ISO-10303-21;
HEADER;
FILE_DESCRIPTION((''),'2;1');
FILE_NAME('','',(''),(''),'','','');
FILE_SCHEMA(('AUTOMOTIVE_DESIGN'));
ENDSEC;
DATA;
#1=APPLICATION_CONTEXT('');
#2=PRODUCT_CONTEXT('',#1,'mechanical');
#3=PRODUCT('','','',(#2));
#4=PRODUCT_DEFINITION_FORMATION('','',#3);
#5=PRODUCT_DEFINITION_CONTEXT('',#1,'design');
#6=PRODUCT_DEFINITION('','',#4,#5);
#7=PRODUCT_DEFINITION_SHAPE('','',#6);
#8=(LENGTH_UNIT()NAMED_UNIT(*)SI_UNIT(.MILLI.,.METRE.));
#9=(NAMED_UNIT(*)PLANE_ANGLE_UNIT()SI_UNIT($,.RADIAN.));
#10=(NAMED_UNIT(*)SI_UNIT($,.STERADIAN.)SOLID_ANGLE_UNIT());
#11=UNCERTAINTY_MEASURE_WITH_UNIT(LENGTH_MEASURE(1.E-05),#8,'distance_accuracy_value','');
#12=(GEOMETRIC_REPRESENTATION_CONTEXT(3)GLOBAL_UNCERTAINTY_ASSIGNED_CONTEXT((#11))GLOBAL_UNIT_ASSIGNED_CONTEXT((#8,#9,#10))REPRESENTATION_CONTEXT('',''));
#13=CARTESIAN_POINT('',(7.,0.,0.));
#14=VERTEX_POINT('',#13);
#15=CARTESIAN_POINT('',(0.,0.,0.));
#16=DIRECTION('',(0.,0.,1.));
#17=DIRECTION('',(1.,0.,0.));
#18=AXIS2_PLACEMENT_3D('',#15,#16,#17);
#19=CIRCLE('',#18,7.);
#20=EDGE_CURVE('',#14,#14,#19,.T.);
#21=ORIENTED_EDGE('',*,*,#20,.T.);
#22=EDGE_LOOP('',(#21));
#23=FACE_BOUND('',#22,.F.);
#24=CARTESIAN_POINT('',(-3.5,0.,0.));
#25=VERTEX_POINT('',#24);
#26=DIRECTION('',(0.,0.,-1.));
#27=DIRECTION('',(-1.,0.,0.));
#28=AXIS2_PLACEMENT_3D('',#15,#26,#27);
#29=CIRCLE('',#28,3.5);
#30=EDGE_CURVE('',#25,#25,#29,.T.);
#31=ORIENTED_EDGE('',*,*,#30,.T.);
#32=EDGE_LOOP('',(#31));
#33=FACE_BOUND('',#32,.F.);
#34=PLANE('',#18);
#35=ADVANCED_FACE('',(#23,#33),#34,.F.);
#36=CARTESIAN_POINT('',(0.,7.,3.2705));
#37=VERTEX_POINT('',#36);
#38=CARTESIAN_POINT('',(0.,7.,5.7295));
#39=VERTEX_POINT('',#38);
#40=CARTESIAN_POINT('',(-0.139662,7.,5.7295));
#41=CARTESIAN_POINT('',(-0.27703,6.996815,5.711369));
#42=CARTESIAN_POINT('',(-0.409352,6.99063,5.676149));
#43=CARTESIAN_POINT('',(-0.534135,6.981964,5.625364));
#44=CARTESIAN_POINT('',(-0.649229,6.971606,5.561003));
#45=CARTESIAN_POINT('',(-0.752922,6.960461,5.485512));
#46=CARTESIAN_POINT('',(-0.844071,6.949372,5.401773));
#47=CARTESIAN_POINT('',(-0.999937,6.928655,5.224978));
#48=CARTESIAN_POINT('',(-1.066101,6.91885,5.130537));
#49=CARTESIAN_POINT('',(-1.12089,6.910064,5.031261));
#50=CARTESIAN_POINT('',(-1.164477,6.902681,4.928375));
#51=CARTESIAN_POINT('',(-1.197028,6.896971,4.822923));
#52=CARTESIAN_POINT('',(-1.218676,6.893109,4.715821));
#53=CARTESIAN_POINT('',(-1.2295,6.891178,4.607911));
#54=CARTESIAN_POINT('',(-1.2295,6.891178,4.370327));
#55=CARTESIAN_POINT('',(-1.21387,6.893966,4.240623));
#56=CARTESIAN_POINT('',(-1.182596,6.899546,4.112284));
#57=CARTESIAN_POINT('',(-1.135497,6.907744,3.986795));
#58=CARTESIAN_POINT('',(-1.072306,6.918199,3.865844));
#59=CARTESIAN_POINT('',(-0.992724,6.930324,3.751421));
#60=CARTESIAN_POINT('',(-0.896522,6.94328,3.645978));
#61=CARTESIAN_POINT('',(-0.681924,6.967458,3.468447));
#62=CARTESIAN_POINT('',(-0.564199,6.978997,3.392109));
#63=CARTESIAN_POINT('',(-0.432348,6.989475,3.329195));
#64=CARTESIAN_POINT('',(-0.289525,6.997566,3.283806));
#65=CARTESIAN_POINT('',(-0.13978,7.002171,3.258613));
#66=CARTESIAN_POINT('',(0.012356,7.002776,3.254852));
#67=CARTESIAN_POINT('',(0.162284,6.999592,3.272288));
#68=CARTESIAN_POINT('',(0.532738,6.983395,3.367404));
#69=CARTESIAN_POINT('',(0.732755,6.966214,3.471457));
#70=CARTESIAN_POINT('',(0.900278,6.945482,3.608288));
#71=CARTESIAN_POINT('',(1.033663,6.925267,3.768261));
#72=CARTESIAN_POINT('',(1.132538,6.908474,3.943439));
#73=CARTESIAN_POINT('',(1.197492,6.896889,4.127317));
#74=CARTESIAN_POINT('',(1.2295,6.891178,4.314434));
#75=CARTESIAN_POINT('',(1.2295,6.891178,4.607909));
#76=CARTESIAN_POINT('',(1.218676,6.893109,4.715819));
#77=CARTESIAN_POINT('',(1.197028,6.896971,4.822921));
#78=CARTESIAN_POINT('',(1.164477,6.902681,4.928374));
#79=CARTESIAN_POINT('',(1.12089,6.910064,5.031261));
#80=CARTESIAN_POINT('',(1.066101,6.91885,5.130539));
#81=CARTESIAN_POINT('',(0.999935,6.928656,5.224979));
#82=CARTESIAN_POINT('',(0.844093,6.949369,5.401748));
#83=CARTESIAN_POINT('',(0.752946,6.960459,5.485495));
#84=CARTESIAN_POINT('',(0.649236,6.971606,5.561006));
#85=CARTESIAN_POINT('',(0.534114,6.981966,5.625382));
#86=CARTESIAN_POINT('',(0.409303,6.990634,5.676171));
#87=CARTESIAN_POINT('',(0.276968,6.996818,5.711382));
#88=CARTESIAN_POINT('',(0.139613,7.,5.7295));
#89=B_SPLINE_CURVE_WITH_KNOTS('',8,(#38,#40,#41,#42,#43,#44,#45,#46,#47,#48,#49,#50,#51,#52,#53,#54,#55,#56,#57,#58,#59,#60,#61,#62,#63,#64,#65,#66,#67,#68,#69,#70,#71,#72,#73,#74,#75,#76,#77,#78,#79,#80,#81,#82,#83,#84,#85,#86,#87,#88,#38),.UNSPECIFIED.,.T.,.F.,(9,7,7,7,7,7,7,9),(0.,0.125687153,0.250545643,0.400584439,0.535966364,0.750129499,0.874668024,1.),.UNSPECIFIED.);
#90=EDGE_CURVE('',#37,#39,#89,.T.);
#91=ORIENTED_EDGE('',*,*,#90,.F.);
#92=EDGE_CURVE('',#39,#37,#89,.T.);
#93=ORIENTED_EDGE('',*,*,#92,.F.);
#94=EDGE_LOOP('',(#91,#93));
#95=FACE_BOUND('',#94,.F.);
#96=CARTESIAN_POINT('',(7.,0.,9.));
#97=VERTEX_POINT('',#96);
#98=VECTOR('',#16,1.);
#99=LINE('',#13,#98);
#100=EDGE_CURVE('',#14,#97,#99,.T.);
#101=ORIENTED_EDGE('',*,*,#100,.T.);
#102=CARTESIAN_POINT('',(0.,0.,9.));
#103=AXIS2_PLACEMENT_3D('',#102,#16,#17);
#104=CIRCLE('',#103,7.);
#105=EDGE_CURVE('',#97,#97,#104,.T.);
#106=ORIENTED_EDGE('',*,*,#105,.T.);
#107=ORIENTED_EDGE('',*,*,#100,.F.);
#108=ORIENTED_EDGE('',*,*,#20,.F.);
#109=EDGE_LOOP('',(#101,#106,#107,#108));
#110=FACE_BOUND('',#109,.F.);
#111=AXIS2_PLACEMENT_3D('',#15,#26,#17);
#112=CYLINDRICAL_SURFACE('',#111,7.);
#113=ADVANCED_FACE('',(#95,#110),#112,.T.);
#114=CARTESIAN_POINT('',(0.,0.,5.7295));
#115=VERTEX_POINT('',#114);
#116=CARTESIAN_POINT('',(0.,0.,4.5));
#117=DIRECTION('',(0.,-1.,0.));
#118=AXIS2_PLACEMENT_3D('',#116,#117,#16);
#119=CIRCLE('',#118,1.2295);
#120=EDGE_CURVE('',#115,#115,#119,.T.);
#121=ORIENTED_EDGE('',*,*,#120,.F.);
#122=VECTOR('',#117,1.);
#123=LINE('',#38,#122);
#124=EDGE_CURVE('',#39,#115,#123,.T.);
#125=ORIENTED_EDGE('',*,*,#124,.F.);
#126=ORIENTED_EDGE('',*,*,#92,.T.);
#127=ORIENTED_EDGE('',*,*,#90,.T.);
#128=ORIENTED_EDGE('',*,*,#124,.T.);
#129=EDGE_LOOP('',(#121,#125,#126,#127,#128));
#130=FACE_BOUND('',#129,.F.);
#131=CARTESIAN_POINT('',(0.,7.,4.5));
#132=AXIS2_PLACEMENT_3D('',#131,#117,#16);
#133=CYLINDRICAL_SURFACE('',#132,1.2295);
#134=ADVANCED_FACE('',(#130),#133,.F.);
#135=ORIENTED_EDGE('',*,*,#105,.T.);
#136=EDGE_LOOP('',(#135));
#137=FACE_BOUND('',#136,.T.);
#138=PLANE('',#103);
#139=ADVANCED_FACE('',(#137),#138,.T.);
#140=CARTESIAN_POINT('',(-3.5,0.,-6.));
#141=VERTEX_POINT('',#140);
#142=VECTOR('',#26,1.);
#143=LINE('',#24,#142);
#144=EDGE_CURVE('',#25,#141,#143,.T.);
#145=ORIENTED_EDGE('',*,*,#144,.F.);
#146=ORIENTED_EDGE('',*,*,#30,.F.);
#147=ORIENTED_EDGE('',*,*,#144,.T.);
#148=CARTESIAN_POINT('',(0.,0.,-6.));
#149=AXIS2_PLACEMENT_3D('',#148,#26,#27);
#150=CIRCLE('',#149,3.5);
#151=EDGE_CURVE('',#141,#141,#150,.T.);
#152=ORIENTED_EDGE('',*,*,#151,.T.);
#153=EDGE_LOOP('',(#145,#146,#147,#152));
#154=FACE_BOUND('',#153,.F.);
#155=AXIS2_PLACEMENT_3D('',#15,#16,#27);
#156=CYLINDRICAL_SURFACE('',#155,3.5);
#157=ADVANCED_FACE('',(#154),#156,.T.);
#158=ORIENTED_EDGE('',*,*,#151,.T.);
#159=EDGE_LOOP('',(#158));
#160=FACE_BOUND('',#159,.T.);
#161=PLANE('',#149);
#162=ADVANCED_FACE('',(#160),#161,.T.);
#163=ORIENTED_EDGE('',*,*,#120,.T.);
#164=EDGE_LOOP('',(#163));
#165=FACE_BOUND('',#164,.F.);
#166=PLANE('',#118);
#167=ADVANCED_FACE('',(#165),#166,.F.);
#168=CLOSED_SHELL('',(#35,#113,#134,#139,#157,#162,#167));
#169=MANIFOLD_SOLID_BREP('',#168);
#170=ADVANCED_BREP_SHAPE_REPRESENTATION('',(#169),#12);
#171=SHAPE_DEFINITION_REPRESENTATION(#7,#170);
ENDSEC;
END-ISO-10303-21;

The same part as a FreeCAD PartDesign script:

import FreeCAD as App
import Part
import Sketcher
from FreeCAD import Vector
Q = App.Units.Quantity

doc = App.newDocument("Part")
body = doc.addObject("PartDesign::Body", "Body")

# Sketch on XY plane
sketch1 = body.newObject("Sketcher::SketchObject", "Sketch")
sketch1.AttachmentSupport = (doc.getObject("XY_Plane"), [""])
sketch1.MapMode = "FlatFace"
sketch1.addGeometry(Part.Circle(Vector(0, 0, 0), Vector(0, 0, 1), 7), False)
sketch1.addConstraint([
    Sketcher.Constraint("Coincident", 0, 3, -1, 1),
    Sketcher.Constraint("Diameter", 0, Q("14 mm")),
])
pad1 = body.newObject("PartDesign::Pad", "Pad")
pad1.Profile = sketch1
pad1.Length = 9

# Sketch on XZ plane
sketch2 = body.newObject("Sketcher::SketchObject", "Sketch001")
sketch2.AttachmentSupport = (doc.getObject("XZ_Plane"), [""])
sketch2.MapMode = "FlatFace"
sketch2.AttachmentOffset = App.Placement(Vector(0, 0, -7), App.Rotation())
sketch2.addGeometry(Part.Circle(Vector(0, 4.5, 0), Vector(0, 0, 1), 1.2295), False)
sketch2.addConstraint([
    Sketcher.Constraint("PointOnObject", 0, 3, -2),
    Sketcher.Constraint("Diameter", 0, Q("2.459 mm")),
    Sketcher.Constraint("DistanceY", -1, 1, 0, 3, Q("4.5 mm")),
])
doc.recompute()
hole = body.newObject("PartDesign::Hole", "Hole")
hole.Profile = sketch2
hole.ThreadType = "None"
hole.Diameter = 2.459
hole.DepthType = "Dimension"
hole.Depth = 7
hole.DrillPoint = "Flat"
hole.Reversed = True

# Sketch on XY plane
sketch3 = body.newObject("Sketcher::SketchObject", "Sketch002")
sketch3.AttachmentSupport = (doc.getObject("XY_Plane"), [""])
sketch3.MapMode = "FlatFace"
sketch3.addGeometry(Part.Circle(Vector(0, 0, 0), Vector(0, 0, 1), 3.5), False)
sketch3.addConstraint([
    Sketcher.Constraint("Coincident", 0, 3, -1, 1),
    Sketcher.Constraint("Diameter", 0, Q("7 mm")),
])
pad2 = body.newObject("PartDesign::Pad", "Pad001")
pad2.Profile = sketch3
pad2.Length = 6
pad2.Reversed = True

doc.recompute()
